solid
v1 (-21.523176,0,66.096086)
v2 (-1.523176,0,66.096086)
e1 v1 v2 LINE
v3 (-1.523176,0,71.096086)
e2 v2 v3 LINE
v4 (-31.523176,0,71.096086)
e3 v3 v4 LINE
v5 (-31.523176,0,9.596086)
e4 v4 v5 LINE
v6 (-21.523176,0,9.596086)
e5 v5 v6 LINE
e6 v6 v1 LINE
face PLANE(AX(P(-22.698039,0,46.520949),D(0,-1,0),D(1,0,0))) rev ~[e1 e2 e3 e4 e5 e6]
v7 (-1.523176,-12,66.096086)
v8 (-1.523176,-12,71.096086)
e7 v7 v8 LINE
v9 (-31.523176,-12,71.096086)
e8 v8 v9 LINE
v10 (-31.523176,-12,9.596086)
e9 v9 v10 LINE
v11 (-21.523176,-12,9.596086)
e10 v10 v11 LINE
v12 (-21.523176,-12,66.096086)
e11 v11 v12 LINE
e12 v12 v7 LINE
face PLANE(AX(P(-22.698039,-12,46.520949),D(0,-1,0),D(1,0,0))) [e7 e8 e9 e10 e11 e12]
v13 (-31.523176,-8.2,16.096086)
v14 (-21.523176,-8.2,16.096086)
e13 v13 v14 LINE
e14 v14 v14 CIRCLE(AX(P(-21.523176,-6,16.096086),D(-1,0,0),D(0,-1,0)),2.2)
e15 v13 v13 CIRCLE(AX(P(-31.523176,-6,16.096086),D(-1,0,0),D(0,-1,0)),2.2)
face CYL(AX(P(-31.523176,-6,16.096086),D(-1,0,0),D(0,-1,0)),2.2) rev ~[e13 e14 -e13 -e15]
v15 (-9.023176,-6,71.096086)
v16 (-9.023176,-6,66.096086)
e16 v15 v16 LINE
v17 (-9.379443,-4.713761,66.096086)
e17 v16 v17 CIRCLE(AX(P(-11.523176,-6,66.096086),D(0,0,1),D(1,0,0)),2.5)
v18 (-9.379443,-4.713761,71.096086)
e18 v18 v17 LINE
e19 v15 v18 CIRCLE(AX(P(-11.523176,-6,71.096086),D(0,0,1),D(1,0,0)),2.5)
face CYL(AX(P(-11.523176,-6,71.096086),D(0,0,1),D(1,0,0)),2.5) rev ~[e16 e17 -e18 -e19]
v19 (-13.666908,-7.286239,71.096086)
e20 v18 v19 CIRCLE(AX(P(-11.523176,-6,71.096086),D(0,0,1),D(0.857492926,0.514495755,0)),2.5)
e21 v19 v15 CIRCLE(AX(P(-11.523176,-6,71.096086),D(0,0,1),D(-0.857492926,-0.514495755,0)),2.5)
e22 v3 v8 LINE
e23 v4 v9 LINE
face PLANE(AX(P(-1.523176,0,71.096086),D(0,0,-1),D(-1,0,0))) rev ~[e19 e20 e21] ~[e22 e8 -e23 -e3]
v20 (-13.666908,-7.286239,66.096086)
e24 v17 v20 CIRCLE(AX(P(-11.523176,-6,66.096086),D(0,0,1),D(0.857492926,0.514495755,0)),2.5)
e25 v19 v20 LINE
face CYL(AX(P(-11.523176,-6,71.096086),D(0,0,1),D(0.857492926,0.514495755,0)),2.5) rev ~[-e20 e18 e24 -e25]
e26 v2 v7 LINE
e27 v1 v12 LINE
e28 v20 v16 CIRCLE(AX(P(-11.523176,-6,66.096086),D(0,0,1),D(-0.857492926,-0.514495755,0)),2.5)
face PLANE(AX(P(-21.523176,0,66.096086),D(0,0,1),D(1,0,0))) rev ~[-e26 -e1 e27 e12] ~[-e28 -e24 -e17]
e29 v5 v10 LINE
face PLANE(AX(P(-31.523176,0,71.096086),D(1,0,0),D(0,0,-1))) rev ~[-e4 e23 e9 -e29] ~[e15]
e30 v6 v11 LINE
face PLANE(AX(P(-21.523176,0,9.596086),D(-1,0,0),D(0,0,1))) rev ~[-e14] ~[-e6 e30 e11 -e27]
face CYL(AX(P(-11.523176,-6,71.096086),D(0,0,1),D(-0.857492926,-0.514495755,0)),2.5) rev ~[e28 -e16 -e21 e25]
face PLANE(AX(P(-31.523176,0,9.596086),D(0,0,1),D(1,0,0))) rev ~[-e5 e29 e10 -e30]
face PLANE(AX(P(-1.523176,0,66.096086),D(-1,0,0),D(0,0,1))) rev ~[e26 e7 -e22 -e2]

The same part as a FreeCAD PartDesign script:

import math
import FreeCAD as App
import Part
import Sketcher
from FreeCAD import Vector
Q = App.Units.Quantity

doc = App.newDocument("Part")
body = doc.addObject("PartDesign::Body", "Body")

sketch1 = doc.addObject("Sketcher::SketchObject", "Sketch")
body.addObject(sketch1)
sketch1.AttachmentSupport = (doc.XZ_Plane, [""])
sketch1.MapMode = "FlatFace"
sketch1.addGeometry([
    Part.LineSegment(Vector(-2, 71, 0), Vector(-32, 71, 0)),
    Part.LineSegment(Vector(-32, 71, 0), Vector(-32, 10, 0)),
    Part.LineSegment(Vector(-32, 10, 0), Vector(-22, 10, 0)),
    Part.LineSegment(Vector(-22, 10, 0), Vector(-22, 66, 0)),
    Part.LineSegment(Vector(-22, 66, 0), Vector(-2, 66, 0)),
    Part.LineSegment(Vector(-2, 66, 0), Vector(-2, 71, 0)),
], False)
sketch1.addConstraint([
    Sketcher.Constraint("Coincident", 0, 2, 1, 1),
    Sketcher.Constraint("Coincident", 1, 2, 2, 1),
    Sketcher.Constraint("Coincident", 2, 2, 3, 1),
    Sketcher.Constraint("Coincident", 3, 2, 4, 1),
    Sketcher.Constraint("Coincident", 4, 2, 5, 1),
    Sketcher.Constraint("Coincident", 5, 2, 0, 1),
    Sketcher.Constraint("Horizontal", 0),
    Sketcher.Constraint("Vertical", 1),
    Sketcher.Constraint("Horizontal", 2),
    Sketcher.Constraint("Vertical", 3),
    Sketcher.Constraint("Horizontal", 4),
    Sketcher.Constraint("Vertical", 5),
    Sketcher.Constraint("DistanceX", 0, 2, 0, 1, Q("30 mm")),
    Sketcher.Constraint("DistanceX", 2, 1, 2, 2, Q("10 mm")),
    Sketcher.Constraint("DistanceY", 5, 1, 5, 2, Q("5 mm")),
    Sketcher.Constraint("DistanceY", 1, 2, 1, 1, Q("61.5 mm")),
    Sketcher.Constraint("DistanceX", 0, 2, -1, 1, Q("31.523176 mm")),
    Sketcher.Constraint("DistanceY", -1, 1, 0, 2, Q("71.096086 mm")),
])
pad1 = doc.addObject("PartDesign::Pad", "Pad")
body.addObject(pad1)
pad1.Profile = sketch1
pad1.Length = 12

sketch2 = doc.addObject("Sketcher::SketchObject", "Sketch001")
body.addObject(sketch2)
sketch2.AttachmentSupport = (doc.YZ_Plane, [""])
sketch2.MapMode = "FlatFace"
sketch2.AttachmentOffset = App.Placement(Vector(0, 0, -31.523176), App.Rotation())
sketch2.addGeometry(Part.Circle(Vector(-6, 16.1, 0), Vector(0, 0, 1), 2.2), False)
sketch2.addConstraint([
    Sketcher.Constraint("Diameter", 0, Q("4.4 mm")),
    Sketcher.Constraint("DistanceX", 0, 3, -1, 1, Q("6 mm")),
    Sketcher.Constraint("DistanceY", -1, 1, 0, 3, Q("16.096086 mm")),
])
pocket1 = doc.addObject("PartDesign::Pocket", "Pocket")
body.addObject(pocket1)
pocket1.Profile = sketch2
pocket1.Length = 25
pocket1.Reversed = True

sketch3 = doc.addObject("Sketcher::SketchObject", "Sketch002")
body.addObject(sketch3)
sketch3.AttachmentSupport = (doc.XY_Plane, [""])
sketch3.MapMode = "FlatFace"
sketch3.AttachmentOffset = App.Placement(Vector(0, 0, 71.096086), App.Rotation())
sketch3.addGeometry([
    Part.ArcOfCircle(Part.Circle(Vector(-11.5, -6, 0), Vector(0, 0, 1), 2.5), math.radians(31), math.radians(211)),
    Part.ArcOfCircle(Part.Circle(Vector(-11.5, -6, 0), Vector(0, 0, 1), 2.5), math.radians(-149), math.radians(0)),
    Part.ArcOfCircle(Part.Circle(Vector(-11.5, -6, 0), Vector(0, 0, 1), 2.5), math.radians(0), math.radians(31)),
], False)
sketch3.addConstraint([
    Sketcher.Constraint("Tangent", 0, 2, 1, 1),
    Sketcher.Constraint("Tangent", 1, 2, 2, 1),
    Sketcher.Constraint("Tangent", 2, 2, 0, 1),
    Sketcher.Constraint("Horizontal", 2, 3, 1, 2),
    Sketcher.Constraint("Radius", 0, Q("2.5 mm")),
    Sketcher.Constraint("DistanceY", 0, 3, -1, 1, Q("6 mm")),
    Sketcher.Constraint("DistanceY", 0, 2, -1, 1, Q("7.286239 mm")),
    Sketcher.Constraint("DistanceY", 2, 2, -1, 1, Q("4.713761 mm")),
    Sketcher.Constraint("DistanceX", 0, 3, -1, 1, Q("11.523176 mm")),
])
pocket2 = doc.addObject("PartDesign::Pocket", "Pocket001")
body.addObject(pocket2)
pocket2.Profile = sketch3
pocket2.Length = 25

doc.recompute()
